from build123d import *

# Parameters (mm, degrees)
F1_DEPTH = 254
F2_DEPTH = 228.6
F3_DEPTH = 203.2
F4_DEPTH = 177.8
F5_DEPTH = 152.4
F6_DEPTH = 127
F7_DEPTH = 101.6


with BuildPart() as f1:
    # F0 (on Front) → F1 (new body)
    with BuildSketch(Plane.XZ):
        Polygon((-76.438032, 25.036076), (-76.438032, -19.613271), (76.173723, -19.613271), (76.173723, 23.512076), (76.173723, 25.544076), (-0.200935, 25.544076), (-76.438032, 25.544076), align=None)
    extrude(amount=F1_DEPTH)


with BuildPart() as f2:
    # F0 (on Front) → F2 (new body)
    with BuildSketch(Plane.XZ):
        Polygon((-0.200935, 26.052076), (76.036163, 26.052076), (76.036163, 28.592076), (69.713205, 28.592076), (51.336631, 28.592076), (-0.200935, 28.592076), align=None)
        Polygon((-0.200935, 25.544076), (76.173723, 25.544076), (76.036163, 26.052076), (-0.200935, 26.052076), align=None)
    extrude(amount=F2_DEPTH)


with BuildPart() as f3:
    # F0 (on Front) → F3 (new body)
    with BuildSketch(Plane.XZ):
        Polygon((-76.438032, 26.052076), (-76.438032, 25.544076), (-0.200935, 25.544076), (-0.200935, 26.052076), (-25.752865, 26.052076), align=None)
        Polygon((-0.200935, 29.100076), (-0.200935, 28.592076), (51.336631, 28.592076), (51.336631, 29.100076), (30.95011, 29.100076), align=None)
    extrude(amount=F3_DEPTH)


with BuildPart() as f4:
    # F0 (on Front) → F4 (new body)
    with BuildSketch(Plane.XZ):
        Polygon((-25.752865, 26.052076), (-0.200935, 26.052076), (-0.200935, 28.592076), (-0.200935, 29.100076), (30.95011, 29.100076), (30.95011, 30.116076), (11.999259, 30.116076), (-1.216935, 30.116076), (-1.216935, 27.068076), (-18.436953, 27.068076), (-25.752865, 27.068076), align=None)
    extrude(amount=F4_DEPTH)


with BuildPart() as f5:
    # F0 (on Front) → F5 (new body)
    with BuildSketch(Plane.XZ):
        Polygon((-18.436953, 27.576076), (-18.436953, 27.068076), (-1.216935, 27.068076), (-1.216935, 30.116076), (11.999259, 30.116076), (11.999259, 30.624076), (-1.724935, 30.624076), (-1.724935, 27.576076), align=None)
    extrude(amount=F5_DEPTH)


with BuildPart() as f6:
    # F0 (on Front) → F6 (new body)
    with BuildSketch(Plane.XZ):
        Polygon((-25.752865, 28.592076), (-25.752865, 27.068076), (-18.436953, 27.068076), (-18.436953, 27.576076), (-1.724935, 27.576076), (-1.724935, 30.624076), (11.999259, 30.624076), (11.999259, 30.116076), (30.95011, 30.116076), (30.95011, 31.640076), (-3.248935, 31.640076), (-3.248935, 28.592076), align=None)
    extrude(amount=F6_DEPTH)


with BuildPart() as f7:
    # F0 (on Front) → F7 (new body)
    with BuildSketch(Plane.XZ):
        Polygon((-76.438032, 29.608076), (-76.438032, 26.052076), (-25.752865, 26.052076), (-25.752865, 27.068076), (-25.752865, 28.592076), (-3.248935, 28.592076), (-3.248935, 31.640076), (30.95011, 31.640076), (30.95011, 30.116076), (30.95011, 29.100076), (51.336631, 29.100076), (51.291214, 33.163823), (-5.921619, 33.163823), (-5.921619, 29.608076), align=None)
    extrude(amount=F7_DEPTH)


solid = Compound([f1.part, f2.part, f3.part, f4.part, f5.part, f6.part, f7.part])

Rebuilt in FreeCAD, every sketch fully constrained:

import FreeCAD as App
import Part
import Sketcher

V = App.Vector
Q = App.Units.Quantity


def add_polygon(sketch, points):
    """Adds a closed chain of lines whose ends are joined by coincident constraints."""
    first, n = sketch.GeometryCount, len(points)
    for a, b in zip(points, points[1:] + points[:1]):
        sketch.addGeometry(Part.LineSegment(App.Vector(*a, 0), App.Vector(*b, 0)), False)
    for i in range(n):
        sketch.addConstraint(Sketcher.Constraint("Coincident", first + i, 2, first + (i + 1) % n, 1))

doc = App.newDocument("Part")
body = doc.addObject("PartDesign::Body", "Body")

# Sketch on XZ plane
sketch1 = body.newObject("Sketcher::SketchObject", "Sketch")
sketch1.AttachmentSupport = (doc.getObject("XZ_Plane"), [""])
sketch1.MapMode = "FlatFace"
add_polygon(sketch1, [(-76.438032, -19.613271), (76.173723, -19.613271), (76.173723, 25.544076), (-76.438032, 25.544076)])  # lines 0-3
sketch1.addConstraint([
    Sketcher.Constraint("Horizontal", 0),
    Sketcher.Constraint("Vertical", 1),
    Sketcher.Constraint("Horizontal", 2),
    Sketcher.Constraint("Vertical", 3),
    Sketcher.Constraint("DistanceX", 0, 1, 0, 2, 152.611755),
    Sketcher.Constraint("DistanceY", 1, 1, 1, 2, 45.157347),
    Sketcher.Constraint("DistanceY", 0, 2, -1, 1, 19.613271),
    Sketcher.Constraint("DistanceX", -1, 1, 0, 2, 76.173723),
])
pad1 = body.newObject("PartDesign::Pad", "Pad")
pad1.Profile = sketch1
pad1.Length = Q("10 in")
body2 = doc.addObject("PartDesign::Body", "Body001")

# Sketch on XZ plane
sketch2 = body2.newObject("Sketcher::SketchObject", "Sketch001")
sketch2.AttachmentSupport = (doc.getObject("XZ_Plane001"), [""])
sketch2.MapMode = "FlatFace"
add_polygon(sketch2, [(76.036163, 26.052076), (76.036163, 28.592076), (-0.200935, 28.592076), (-0.200935, 25.544076), (76.173723, 25.544076)])  # lines 0-4
sketch2.addConstraint([
    Sketcher.Constraint("Vertical", 0),
    Sketcher.Constraint("Horizontal", 1),
    Sketcher.Constraint("Vertical", 2),
    Sketcher.Constraint("Horizontal", 3),
    Sketcher.Constraint("DistanceY", 0, 1, 0, 2, Q("0.1 in")),
    Sketcher.Constraint("DistanceY", 2, 2, 2, 1, Q("0.12 in")),
    Sketcher.Constraint("DistanceX", 1, 2, 1, 1, 76.237098),
    Sketcher.Constraint("DistanceX", 3, 1, 3, 2, 76.374658),
    Sketcher.Constraint("DistanceX", -1, 1, 0, 2, 76.036163),
    Sketcher.Constraint("DistanceY", -1, 1, 0, 2, 28.592076),
])
pad2 = body2.newObject("PartDesign::Pad", "Pad001")
pad2.Profile = sketch2
pad2.Length = Q("9 in")
body3 = doc.addObject("PartDesign::Body", "Body002")
body3.AllowCompound = True

# Sketch on XZ plane
sketch3 = body3.newObject("Sketcher::SketchObject", "Sketch002")
sketch3.AttachmentSupport = (doc.getObject("XZ_Plane002"), [""])
sketch3.MapMode = "FlatFace"
add_polygon(sketch3, [(-76.438032, 26.052076), (-76.438032, 25.544076), (-0.200935, 25.544076), (-0.200935, 26.052076)])  # lines 0-3
add_polygon(sketch3, [(-0.200935, 29.100076), (-0.200935, 28.592076), (51.336631, 28.592076), (51.336631, 29.100076)])  # lines 4-7
sketch3.addConstraint([
    Sketcher.Constraint("Vertical", 0),
    Sketcher.Constraint("Horizontal", 1),
    Sketcher.Constraint("Vertical", 2),
    Sketcher.Constraint("Horizontal", 3),
    Sketcher.Constraint("Vertical", 4),
    Sketcher.Constraint("Horizontal", 5),
    Sketcher.Constraint("Vertical", 6),
    Sketcher.Constraint("Horizontal", 7),
    Sketcher.Constraint("Vertical", 2, 2, 4, 2),
    Sketcher.Constraint("Equal", 2, 4),
    Sketcher.Constraint("DistanceY", 0, 2, 0, 1, Q("0.02 in")),
    Sketcher.Constraint("DistanceY", 2, 2, 4, 2, Q("0.1 in")),
    Sketcher.Constraint("DistanceX", 1, 1, 1, 2, 76.237097),
    Sketcher.Constraint("DistanceX", 5, 1, 5, 2, 51.537566),
    Sketcher.Constraint("DistanceX", -1, 1, 5, 2, 51.336631),
    Sketcher.Constraint("DistanceY", -1, 1, 0, 2, 25.544076),
])
pad3 = body3.newObject("PartDesign::Pad", "Pad002")
pad3.Profile = sketch3
pad3.Length = Q("8 in")
body4 = doc.addObject("PartDesign::Body", "Body003")

# Sketch on XZ plane
sketch4 = body4.newObject("Sketcher::SketchObject", "Sketch003")
sketch4.AttachmentSupport = (doc.getObject("XZ_Plane003"), [""])
sketch4.MapMode = "FlatFace"
add_polygon(sketch4, [(-25.752865, 26.052076), (-0.200935, 26.052076), (-0.200935, 29.100076), (30.95011, 29.100076), (30.95011, 30.116076), (-1.216935, 30.116076), (-1.216935, 27.068076), (-25.752865, 27.068076)])  # lines 0-7
sketch4.addConstraint([
    Sketcher.Constraint("Horizontal", 0),
    Sketcher.Constraint("Vertical", 1),
    Sketcher.Constraint("Horizontal", 2),
    Sketcher.Constraint("Vertical", 3),
    Sketcher.Constraint("Horizontal", 4),
    Sketcher.Constraint("Vertical", 5),
    Sketcher.Constraint("Horizontal", 6),
    Sketcher.Constraint("Vertical", 7),
    Sketcher.Constraint("Equal", 1, 5),
    Sketcher.Constraint("DistanceY", 1, 1, 1, 2, Q("0.12 in")),
    Sketcher.Constraint("DistanceY", 3, 1, 3, 2, Q("0.04 in")),
    Sketcher.Constraint("DistanceX", 4, 2, 1, 2, Q("0.04 in")),
    Sketcher.Constraint("DistanceX", 0, 1, 0, 2, 25.55193),
    Sketcher.Constraint("DistanceX", 2, 1, 2, 2, 31.151045),
    Sketcher.Constraint("DistanceX", -1, 1, 2, 2, 30.95011),
    Sketcher.Constraint("DistanceY", -1, 1, 0, 2, 26.052076),
])
pad4 = body4.newObject("PartDesign::Pad", "Pad003")
pad4.Profile = sketch4
pad4.Length = Q("7 in")
body5 = doc.addObject("PartDesign::Body", "Body004")

# Sketch on XZ plane
sketch5 = body5.newObject("Sketcher::SketchObject", "Sketch004")
sketch5.AttachmentSupport = (doc.getObject("XZ_Plane004"), [""])
sketch5.MapMode = "FlatFace"
add_polygon(sketch5, [(-18.436953, 27.576076), (-18.436953, 27.068076), (-1.216935, 27.068076), (-1.216935, 30.116076), (11.999259, 30.116076), (11.999259, 30.624076), (-1.724935, 30.624076), (-1.724935, 27.576076)])  # lines 0-7
sketch5.addConstraint([
    Sketcher.Constraint("Vertical", 0),
    Sketcher.Constraint("Horizontal", 1),
    Sketcher.Constraint("Vertical", 2),
    Sketcher.Constraint("Horizontal", 3),
    Sketcher.Constraint("Vertical", 4),
    Sketcher.Constraint("Horizontal", 5),
    Sketcher.Constraint("Vertical", 6),
    Sketcher.Constraint("Horizontal", 7),
    Sketcher.Constraint("Equal", 0, 4),
    Sketcher.Constraint("DistanceY", 0, 2, 0, 1, Q("0.02 in")),
    Sketcher.Constraint("DistanceY", 2, 1, 2, 2, Q("0.12 in")),
    Sketcher.Constraint("DistanceX", 5, 2, 2, 2, Q("0.02 in")),
    Sketcher.Constraint("DistanceX", 7, 2, 7, 1, 16.712018),
    Sketcher.Constraint("DistanceX", 3, 1, 3, 2, 13.216194),
    Sketcher.Constraint("DistanceX", -1, 1, 3, 2, 11.999259),
    Sketcher.Constraint("DistanceY", -1, 1, 0, 2, 27.068076),
])
pad5 = body5.newObject("PartDesign::Pad", "Pad004")
pad5.Profile = sketch5
pad5.Length = Q("6 in")
body6 = doc.addObject("PartDesign::Body", "Body005")

# Sketch on XZ plane
sketch6 = body6.newObject("Sketcher::SketchObject", "Sketch005")
sketch6.AttachmentSupport = (doc.getObject("XZ_Plane005"), [""])
sketch6.MapMode = "FlatFace"
add_polygon(sketch6, [(-25.752865, 28.592076), (-25.752865, 27.068076), (-18.436953, 27.068076), (-18.436953, 27.576076), (-1.724935, 27.576076), (-1.724935, 30.624076), (11.999259, 30.624076), (11.999259, 30.116076), (30.95011, 30.116076), (30.95011, 31.640076), (-3.248935, 31.640076), (-3.248935, 28.592076)])  # lines 0-11
sketch6.addConstraint([
    Sketcher.Constraint("Vertical", 0),
    Sketcher.Constraint("Horizontal", 1),
    Sketcher.Constraint("Vertical", 2),
    Sketcher.Constraint("Horizontal", 3),
    Sketcher.Constraint("Vertical", 4),
    Sketcher.Constraint("Horizontal", 5),
    Sketcher.Constraint("Vertical", 6),
    Sketcher.Constraint("Horizontal", 7),
    Sketcher.Constraint("Vertical", 8),
    Sketcher.Constraint("Horizontal", 9),
    Sketcher.Constraint("Vertical", 10),
    Sketcher.Constraint("Horizontal", 11),
    Sketcher.Constraint("Equal", 2, 6),
    Sketcher.Constraint("Equal", 0, 8),
    Sketcher.Constraint("DistanceY", 0, 2, 0, 1, Q("0.06 in")),
    Sketcher.Constraint("DistanceY", 2, 1, 2, 2, Q("0.02 in")),
    Sketcher.Constraint("DistanceY", 4, 1, 4, 2, Q("0.12 in")),
    Sketcher.Constraint("DistanceX", 9, 2, 4, 2, Q("0.06 in")),
    Sketcher.Constraint("DistanceX", 3, 1, 3, 2, 16.712018),
    Sketcher.Constraint("DistanceX", 7, 1, 7, 2, 18.950851),
    Sketcher.Constraint("DistanceX", 11, 2, 11, 1, 22.50393),
    Sketcher.Constraint("DistanceX", 5, 1, 5, 2, 13.724194),
    Sketcher.Constraint("DistanceX", -1, 1, 5, 2, 11.999259),
    Sketcher.Constraint("DistanceY", -1, 1, 0, 2, 27.068076),
])
pad6 = body6.newObject("PartDesign::Pad", "Pad005")
pad6.Profile = sketch6
pad6.Length = Q("5 in")
body7 = doc.addObject("PartDesign::Body", "Body006")

# Sketch on XZ plane
sketch7 = body7.newObject("Sketcher::SketchObject", "Sketch006")
sketch7.AttachmentSupport = (doc.getObject("XZ_Plane006"), [""])
sketch7.MapMode = "FlatFace"
add_polygon(sketch7, [(-76.438032, 29.608076), (-76.438032, 26.052076), (-25.752865, 26.052076), (-25.752865, 28.592076), (-3.248935, 28.592076), (-3.248935, 31.640076), (30.95011, 31.640076), (30.95011, 29.100076), (51.336631, 29.100076), (51.291214, 33.163823), (-5.921619, 33.163823), (-5.921619, 29.608076)])  # lines 0-11
sketch7.addConstraint([
    Sketcher.Constraint("Vertical", 0),
    Sketcher.Constraint("Horizontal", 1),
    Sketcher.Constraint("Vertical", 2),
    Sketcher.Constraint("Horizontal", 3),
    Sketcher.Constraint("Vertical", 4),
    Sketcher.Constraint("Horizontal", 5),
    Sketcher.Constraint("Vertical", 6),
    Sketcher.Constraint("Horizontal", 7),
    Sketcher.Constraint("Horizontal", 9),
    Sketcher.Constraint("Vertical", 10),
    Sketcher.Constraint("Horizontal", 11),
    Sketcher.Constraint("Equal", 2, 6),
    Sketcher.Constraint("DistanceY", 2, 1, 2, 2, Q("0.1 in")),
    Sketcher.Constraint("DistanceY", 0, 2, 0, 1, Q("0.14 in")),
    Sketcher.Constraint("DistanceY", 4, 1, 4, 2, Q("0.12 in")),
    Sketcher.Constraint("Distance", 8, Q("0.16 in")),
    Sketcher.Constraint("DistanceX", 3, 1, 3, 2, 22.50393),
    Sketcher.Constraint("DistanceX", 7, 1, 7, 2, 20.386521),
    Sketcher.Constraint("DistanceX", 1, 1, 1, 2, 50.685167),
    Sketcher.Constraint("DistanceX", 5, 1, 5, 2, 34.199045),
    Sketcher.Constraint("DistanceX", 9, 2, 9, 1, 57.212833),
    Sketcher.Constraint("DistanceX", 11, 2, 11, 1, 70.516413),
    Sketcher.Constraint("DistanceX", -1, 1, 5, 2, 30.95011),
    Sketcher.Constraint("DistanceY", -1, 1, 0, 2, 26.052076),
])
pad7 = body7.newObject("PartDesign::Pad", "Pad006")
pad7.Profile = sketch7
pad7.Length = Q("4 in")

doc.recompute()
